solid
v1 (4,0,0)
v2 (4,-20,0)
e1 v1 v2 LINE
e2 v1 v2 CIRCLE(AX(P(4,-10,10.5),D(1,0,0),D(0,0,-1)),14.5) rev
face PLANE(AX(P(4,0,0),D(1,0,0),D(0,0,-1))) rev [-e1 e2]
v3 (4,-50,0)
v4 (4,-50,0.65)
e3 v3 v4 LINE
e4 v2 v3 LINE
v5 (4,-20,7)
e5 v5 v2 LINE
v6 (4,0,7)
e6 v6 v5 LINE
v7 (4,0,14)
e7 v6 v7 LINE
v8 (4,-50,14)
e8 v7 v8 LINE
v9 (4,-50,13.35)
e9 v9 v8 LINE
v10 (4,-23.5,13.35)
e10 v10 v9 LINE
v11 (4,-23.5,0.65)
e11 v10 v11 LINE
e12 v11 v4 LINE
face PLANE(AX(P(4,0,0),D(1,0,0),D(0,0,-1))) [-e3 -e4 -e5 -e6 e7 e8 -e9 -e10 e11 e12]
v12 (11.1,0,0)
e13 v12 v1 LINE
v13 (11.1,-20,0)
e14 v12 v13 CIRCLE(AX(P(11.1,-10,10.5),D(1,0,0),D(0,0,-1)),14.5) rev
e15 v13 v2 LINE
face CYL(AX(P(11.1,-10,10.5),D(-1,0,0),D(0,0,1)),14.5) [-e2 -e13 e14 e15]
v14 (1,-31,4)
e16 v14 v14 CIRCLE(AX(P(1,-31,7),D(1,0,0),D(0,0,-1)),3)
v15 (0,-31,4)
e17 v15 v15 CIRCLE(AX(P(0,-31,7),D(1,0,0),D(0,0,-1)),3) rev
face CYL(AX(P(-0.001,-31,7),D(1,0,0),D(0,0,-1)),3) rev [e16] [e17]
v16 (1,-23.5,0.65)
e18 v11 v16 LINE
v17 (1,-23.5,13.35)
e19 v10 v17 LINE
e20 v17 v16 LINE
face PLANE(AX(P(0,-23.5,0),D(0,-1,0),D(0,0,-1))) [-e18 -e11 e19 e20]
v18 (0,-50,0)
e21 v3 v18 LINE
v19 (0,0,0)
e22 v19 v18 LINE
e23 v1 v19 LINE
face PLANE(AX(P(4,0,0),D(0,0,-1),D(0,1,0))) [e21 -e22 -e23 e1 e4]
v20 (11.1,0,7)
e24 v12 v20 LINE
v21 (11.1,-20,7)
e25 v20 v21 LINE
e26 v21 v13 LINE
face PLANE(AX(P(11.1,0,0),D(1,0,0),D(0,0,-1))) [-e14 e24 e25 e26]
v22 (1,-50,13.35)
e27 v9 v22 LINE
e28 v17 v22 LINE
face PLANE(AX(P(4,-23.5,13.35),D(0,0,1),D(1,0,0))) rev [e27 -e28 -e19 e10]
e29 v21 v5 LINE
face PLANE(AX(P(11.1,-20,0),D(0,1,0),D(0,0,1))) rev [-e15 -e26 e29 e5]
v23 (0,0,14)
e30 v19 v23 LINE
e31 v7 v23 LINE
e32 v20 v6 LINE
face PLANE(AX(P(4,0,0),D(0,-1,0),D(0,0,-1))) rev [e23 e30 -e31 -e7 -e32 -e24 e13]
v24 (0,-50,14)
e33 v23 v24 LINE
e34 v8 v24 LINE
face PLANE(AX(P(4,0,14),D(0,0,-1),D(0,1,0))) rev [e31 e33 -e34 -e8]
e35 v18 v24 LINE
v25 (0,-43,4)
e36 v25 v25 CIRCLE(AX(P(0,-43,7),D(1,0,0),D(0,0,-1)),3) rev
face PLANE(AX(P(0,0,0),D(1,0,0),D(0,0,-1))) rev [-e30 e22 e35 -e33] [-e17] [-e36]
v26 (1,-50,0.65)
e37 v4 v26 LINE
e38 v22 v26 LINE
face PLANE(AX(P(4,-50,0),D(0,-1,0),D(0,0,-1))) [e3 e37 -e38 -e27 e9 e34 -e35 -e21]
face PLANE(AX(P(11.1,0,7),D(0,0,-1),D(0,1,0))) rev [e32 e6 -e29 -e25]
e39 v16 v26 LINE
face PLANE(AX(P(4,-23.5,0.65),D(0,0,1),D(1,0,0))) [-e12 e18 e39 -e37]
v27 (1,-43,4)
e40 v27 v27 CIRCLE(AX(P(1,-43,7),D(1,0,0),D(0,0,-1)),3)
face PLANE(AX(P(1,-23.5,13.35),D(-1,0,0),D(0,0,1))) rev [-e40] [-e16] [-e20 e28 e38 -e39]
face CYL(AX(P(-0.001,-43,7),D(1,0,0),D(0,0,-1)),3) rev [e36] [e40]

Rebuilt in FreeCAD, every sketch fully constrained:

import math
import FreeCAD as App
import Part
import Sketcher
from FreeCAD import Vector
Q = App.Units.Quantity

doc = App.newDocument("Part")
params = doc.addObject("Spreadsheet::Sheet", "Params")
for row, (alias, value) in enumerate([
    ("sketch1_width", "50 mm"),
    ("sketch1_height", "14 mm"),
    ("pad1_length", "4 mm"),
    ("sketch2_width", "3 mm"),
    ("sketch2_height", "12.7 mm"),
    ("pocket1_length", "26.5 mm"),
    ("sketch3_radius", "14.5 mm"),
    ("sketch3_width", "20 mm"),
    ("sketch3_height", "7 mm"),
    ("pad2_length", "7.1 mm"),
    ("sketch4_diameter", "6 mm"),
    ("sketch5_diameter", "6 mm"),
], start=1):
    params.set(f"A{row}", alias)
    params.set(f"B{row}", "=" + value)
    params.setAlias(f"B{row}", alias)

body = doc.addObject("PartDesign::Body", "Body")

# Sketch on YZ plane
sketch1 = body.newObject("Sketcher::SketchObject", "Sketch")
sketch1.AttachmentSupport = (doc.getObject("YZ_Plane"), [""])
sketch1.MapMode = "FlatFace"
sketch1.addGeometry([
    Part.LineSegment(Vector(0, 14, 0), Vector(-50, 14, 0)),
    Part.LineSegment(Vector(-50, 14, 0), Vector(-50, 0, 0)),
    Part.LineSegment(Vector(-50, 0, 0), Vector(0, 0, 0)),
    Part.LineSegment(Vector(0, 0, 0), Vector(0, 14, 0)),
], False)
sketch1.addConstraint([
    Sketcher.Constraint("Coincident", 0, 2, 1, 1),
    Sketcher.Constraint("Coincident", 1, 2, 2, 1),
    Sketcher.Constraint("Coincident", 2, 2, 3, 1),
    Sketcher.Constraint("Coincident", 3, 2, 0, 1),
    Sketcher.Constraint("Horizontal", 0),
    Sketcher.Constraint("Vertical", 1),
    Sketcher.Constraint("Horizontal", 2),
    Sketcher.Constraint("Vertical", 3),
    Sketcher.Constraint("Coincident", 2, 2, -1, 1),
    Sketcher.Constraint("DistanceX", 0, 2, 0, 1, Q("50 mm")),
    Sketcher.Constraint("DistanceY", 1, 2, 1, 1, Q("14 mm")),
])
sketch1.setExpression("Constraints[9]", "Params.sketch1_width")
sketch1.setExpression("Constraints[10]", "Params.sketch1_height")
pad1 = body.newObject("PartDesign::Pad", "Pad")
pad1.Profile = sketch1
pad1.setExpression("Length", "Params.pad1_length")

# Sketch on XZ plane
sketch2 = body.newObject("Sketcher::SketchObject", "Sketch001")
sketch2.AttachmentSupport = (doc.getObject("XZ_Plane"), [""])
sketch2.MapMode = "FlatFace"
sketch2.AttachmentOffset = App.Placement(Vector(0, 0, 50), App.Rotation())
sketch2.addGeometry([
    Part.LineSegment(Vector(1, 13.3, 0), Vector(1, 0.7, 0)),
    Part.LineSegment(Vector(1, 0.7, 0), Vector(4, 0.7, 0)),
    Part.LineSegment(Vector(4, 0.7, 0), Vector(4, 13.3, 0)),
    Part.LineSegment(Vector(4, 13.3, 0), Vector(1, 13.3, 0)),
], False)
sketch2.addConstraint([
    Sketcher.Constraint("Coincident", 0, 2, 1, 1),
    Sketcher.Constraint("Coincident", 1, 2, 2, 1),
    Sketcher.Constraint("Coincident", 2, 2, 3, 1),
    Sketcher.Constraint("Coincident", 3, 2, 0, 1),
    Sketcher.Constraint("Vertical", 0),
    Sketcher.Constraint("Horizontal", 1),
    Sketcher.Constraint("Vertical", 2),
    Sketcher.Constraint("Horizontal", 3),
    Sketcher.Constraint("DistanceX", 1, 1, 1, 2, Q("3 mm")),
    Sketcher.Constraint("DistanceY", 0, 2, 0, 1, Q("12.7 mm")),
    Sketcher.Constraint("DistanceX", -1, 1, 0, 2, Q("1 mm")),
    Sketcher.Constraint("DistanceY", -1, 1, 0, 2, Q("0.65 mm")),
])
sketch2.setExpression("Constraints[8]", "Params.sketch2_width")
sketch2.setExpression("Constraints[9]", "Params.sketch2_height")
pocket1 = body.newObject("PartDesign::Pocket", "Pocket")
pocket1.Profile = sketch2
pocket1.setExpression("Length", "Params.pocket1_length")

# Sketch on YZ plane
sketch3 = body.newObject("Sketcher::SketchObject", "Sketch002")
sketch3.AttachmentSupport = (doc.getObject("YZ_Plane"), [""])
sketch3.MapMode = "FlatFace"
sketch3.AttachmentOffset = App.Placement(Vector(0, 0, 4), App.Rotation())
sketch3.addGeometry([
    Part.ArcOfCircle(Part.Circle(Vector(-10, 10, 0), Vector(0, 0, 1), 14), math.radians(-134), math.radians(-46)),
    Part.LineSegment(Vector(0, 0, 0), Vector(0, 7, 0)),
    Part.LineSegment(Vector(0, 7, 0), Vector(-20, 7, 0)),
    Part.LineSegment(Vector(-20, 7, 0), Vector(-20, 0, 0)),
], False)
sketch3.addConstraint([
    Sketcher.Constraint("Coincident", 0, 2, 1, 1),
    Sketcher.Constraint("Coincident", 1, 2, 2, 1),
    Sketcher.Constraint("Coincident", 2, 2, 3, 1),
    Sketcher.Constraint("Coincident", 3, 2, 0, 1),
    Sketcher.Constraint("Vertical", 1),
    Sketcher.Constraint("Horizontal", 2),
    Sketcher.Constraint("Vertical", 3),
    Sketcher.Constraint("Coincident", 0, 2, -1, 1),
    Sketcher.Constraint("PointOnObject", 3, 2, -1),
    Sketcher.Constraint("Radius", 0, Q("14.5 mm")),
    Sketcher.Constraint("DistanceX", 2, 2, 2, 1, Q("20 mm")),
    Sketcher.Constraint("DistanceY", 1, 1, 1, 2, Q("7 mm")),
])
sketch3.setExpression("Constraints[9]", "Params.sketch3_radius")
sketch3.setExpression("Constraints[10]", "Params.sketch3_width")
sketch3.setExpression("Constraints[11]", "Params.sketch3_height")
pad2 = body.newObject("PartDesign::Pad", "Pad001")
pad2.Profile = sketch3
pad2.setExpression("Length", "Params.pad2_length")

# Sketch on YZ plane
sketch4 = body.newObject("Sketcher::SketchObject", "Sketch003")
sketch4.AttachmentSupport = (doc.getObject("YZ_Plane"), [""])
sketch4.MapMode = "FlatFace"
sketch4.AttachmentOffset = App.Placement(Vector(0, 0, 1), App.Rotation())
sketch4.addGeometry(Part.Circle(Vector(-31, 7, 0), Vector(0, 0, 1), 3), False)
sketch4.addConstraint([
    Sketcher.Constraint("Diameter", 0, Q("6 mm")),
    Sketcher.Constraint("DistanceX", 0, 3, -1, 1, Q("31 mm")),
    Sketcher.Constraint("DistanceY", -1, 1, 0, 3, Q("7 mm")),
])
sketch4.setExpression("Constraints[0]", "Params.sketch4_diameter")
pocket2 = body.newObject("PartDesign::Pocket", "Pocket001")
pocket2.Profile = sketch4
pocket2.Type = "UpToFirst"

# Sketch on YZ plane
sketch5 = body.newObject("Sketcher::SketchObject", "Sketch004")
sketch5.AttachmentSupport = (doc.getObject("YZ_Plane"), [""])
sketch5.MapMode = "FlatFace"
sketch5.AttachmentOffset = App.Placement(Vector(0, 0, 1), App.Rotation())
sketch5.addGeometry(Part.Circle(Vector(-43, 7, 0), Vector(0, 0, 1), 3), False)
sketch5.addConstraint([
    Sketcher.Constraint("Diameter", 0, Q("6 mm")),
    Sketcher.Constraint("DistanceX", 0, 3, -1, 1, Q("43 mm")),
    Sketcher.Constraint("DistanceY", -1, 1, 0, 3, Q("7 mm")),
])
sketch5.setExpression("Constraints[0]", "Params.sketch5_diameter")
pocket3 = body.newObject("PartDesign::Pocket", "Pocket002")
pocket3.Profile = sketch5
pocket3.Type = "UpToFirst"

doc.recompute()
